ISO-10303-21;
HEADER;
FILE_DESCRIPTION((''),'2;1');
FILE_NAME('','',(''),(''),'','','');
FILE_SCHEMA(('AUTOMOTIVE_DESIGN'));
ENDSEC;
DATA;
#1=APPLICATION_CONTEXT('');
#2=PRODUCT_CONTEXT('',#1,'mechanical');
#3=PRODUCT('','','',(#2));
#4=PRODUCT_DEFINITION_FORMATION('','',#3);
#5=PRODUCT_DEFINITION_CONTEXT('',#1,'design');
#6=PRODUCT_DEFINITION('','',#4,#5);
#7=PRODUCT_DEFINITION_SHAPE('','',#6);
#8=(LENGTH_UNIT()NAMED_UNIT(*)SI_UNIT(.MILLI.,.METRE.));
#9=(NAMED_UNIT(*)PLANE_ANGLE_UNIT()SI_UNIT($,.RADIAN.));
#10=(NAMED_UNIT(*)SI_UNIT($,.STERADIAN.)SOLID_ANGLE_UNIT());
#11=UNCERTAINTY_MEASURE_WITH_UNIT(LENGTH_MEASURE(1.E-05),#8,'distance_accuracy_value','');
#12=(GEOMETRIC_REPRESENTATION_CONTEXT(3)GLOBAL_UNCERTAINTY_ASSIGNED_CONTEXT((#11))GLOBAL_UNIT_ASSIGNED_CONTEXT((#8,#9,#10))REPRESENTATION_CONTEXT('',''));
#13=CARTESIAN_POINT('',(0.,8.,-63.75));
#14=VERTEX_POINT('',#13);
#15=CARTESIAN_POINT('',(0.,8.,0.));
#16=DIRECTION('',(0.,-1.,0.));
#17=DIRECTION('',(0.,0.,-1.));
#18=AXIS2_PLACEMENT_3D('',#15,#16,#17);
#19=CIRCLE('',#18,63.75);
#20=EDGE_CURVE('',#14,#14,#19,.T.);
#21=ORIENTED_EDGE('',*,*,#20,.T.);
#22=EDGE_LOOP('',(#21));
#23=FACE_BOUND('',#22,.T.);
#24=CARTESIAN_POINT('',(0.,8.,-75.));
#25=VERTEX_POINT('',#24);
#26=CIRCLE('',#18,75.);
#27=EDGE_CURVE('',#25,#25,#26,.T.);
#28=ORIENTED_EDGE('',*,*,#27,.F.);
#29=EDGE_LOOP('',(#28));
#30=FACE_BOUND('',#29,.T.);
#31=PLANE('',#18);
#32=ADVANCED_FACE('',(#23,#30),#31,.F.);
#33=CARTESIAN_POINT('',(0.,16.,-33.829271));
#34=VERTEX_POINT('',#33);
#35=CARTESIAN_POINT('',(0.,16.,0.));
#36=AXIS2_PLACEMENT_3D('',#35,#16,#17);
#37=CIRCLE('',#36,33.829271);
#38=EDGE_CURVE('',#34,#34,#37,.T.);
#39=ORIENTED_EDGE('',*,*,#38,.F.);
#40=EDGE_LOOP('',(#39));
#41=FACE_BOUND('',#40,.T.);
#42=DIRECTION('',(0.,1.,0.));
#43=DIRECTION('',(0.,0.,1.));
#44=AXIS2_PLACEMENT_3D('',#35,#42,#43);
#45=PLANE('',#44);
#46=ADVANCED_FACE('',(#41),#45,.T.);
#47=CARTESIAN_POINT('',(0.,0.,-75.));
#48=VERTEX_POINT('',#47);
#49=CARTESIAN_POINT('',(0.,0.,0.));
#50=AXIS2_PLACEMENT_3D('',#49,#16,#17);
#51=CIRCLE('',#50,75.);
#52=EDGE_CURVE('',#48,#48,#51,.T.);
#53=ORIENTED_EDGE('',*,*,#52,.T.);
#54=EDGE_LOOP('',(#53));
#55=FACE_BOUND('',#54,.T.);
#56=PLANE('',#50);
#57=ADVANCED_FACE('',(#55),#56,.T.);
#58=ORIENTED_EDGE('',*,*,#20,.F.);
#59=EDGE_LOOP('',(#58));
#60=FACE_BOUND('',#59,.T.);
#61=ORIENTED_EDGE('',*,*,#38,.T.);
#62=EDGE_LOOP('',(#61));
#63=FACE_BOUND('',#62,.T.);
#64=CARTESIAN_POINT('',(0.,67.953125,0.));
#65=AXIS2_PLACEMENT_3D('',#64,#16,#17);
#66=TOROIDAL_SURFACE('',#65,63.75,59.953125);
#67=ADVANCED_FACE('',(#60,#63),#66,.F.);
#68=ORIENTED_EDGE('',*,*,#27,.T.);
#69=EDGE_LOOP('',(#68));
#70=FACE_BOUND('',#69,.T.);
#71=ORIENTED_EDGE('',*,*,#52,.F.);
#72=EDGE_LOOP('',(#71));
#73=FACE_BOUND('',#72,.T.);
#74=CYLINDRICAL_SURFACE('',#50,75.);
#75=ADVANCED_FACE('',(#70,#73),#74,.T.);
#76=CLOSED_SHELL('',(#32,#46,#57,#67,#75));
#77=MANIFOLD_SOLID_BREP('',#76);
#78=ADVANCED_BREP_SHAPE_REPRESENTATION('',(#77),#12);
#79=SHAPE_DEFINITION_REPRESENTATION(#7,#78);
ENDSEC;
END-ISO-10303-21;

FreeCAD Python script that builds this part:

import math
import FreeCAD as App
import Part
import Sketcher
Q = App.Units.Quantity

doc = App.newDocument("Part")
body = doc.addObject("PartDesign::Body", "Body")

# Sketch on YZ plane
sketch1 = body.newObject("Sketcher::SketchObject", "Sketch")
sketch1.AttachmentSupport = (doc.getObject("YZ_Plane"), [""])
sketch1.MapMode = "FlatFace"
sketch1.addGeometry([
    Part.ArcOfCircle(Part.Circle(App.Vector(68, -64, 0), App.Vector(0, 0, 1), 60), math.radians(150), math.radians(180)),  # 0
    Part.LineSegment(App.Vector(16, -34, 0), App.Vector(16, 0, 0)),  # 1
    Part.LineSegment(App.Vector(16, 0, 0), App.Vector(0, 0, 0)),  # 2
    Part.LineSegment(App.Vector(0, 0, 0), App.Vector(0, -75, 0)),  # 3
    Part.LineSegment(App.Vector(0, -75, 0), App.Vector(8, -75, 0)),  # 4
    Part.LineSegment(App.Vector(8, -75, 0), App.Vector(8, -64, 0)),  # 5
], False)
sketch1.addConstraint([
    Sketcher.Constraint("Coincident", 0, 1, 1, 1),
    Sketcher.Constraint("Coincident", 1, 2, 2, 1),
    Sketcher.Constraint("Coincident", 2, 2, 3, 1),
    Sketcher.Constraint("Coincident", 3, 2, 4, 1),
    Sketcher.Constraint("Coincident", 4, 2, 5, 1),
    Sketcher.Constraint("Tangent", 5, 2, 0, 2),
    Sketcher.Constraint("Vertical", 1),
    Sketcher.Constraint("Horizontal", 2),
    Sketcher.Constraint("Vertical", 3),
    Sketcher.Constraint("Horizontal", 4),
    Sketcher.Constraint("Vertical", 5),
    Sketcher.Constraint("Coincident", 2, 2, -1, 1),
    Sketcher.Constraint("DistanceX", 2, 2, 2, 1, Q("16 mm")),
    Sketcher.Constraint("DistanceX", 4, 1, 4, 2, Q("8 mm")),
    Sketcher.Constraint("DistanceY", 3, 2, 3, 1, Q("75 mm")),
    Sketcher.Constraint("DistanceY", 5, 1, 5, 2, Q("11.25 mm")),
    Sketcher.Constraint("Radius", 0, Q("59.953125 mm")),
])
revolution = body.newObject("PartDesign::Revolution", "Revolution")
revolution.Profile = sketch1
revolution.ReferenceAxis = (sketch1, ["H_Axis"])
revolution.Angle = 360

doc.recompute()
